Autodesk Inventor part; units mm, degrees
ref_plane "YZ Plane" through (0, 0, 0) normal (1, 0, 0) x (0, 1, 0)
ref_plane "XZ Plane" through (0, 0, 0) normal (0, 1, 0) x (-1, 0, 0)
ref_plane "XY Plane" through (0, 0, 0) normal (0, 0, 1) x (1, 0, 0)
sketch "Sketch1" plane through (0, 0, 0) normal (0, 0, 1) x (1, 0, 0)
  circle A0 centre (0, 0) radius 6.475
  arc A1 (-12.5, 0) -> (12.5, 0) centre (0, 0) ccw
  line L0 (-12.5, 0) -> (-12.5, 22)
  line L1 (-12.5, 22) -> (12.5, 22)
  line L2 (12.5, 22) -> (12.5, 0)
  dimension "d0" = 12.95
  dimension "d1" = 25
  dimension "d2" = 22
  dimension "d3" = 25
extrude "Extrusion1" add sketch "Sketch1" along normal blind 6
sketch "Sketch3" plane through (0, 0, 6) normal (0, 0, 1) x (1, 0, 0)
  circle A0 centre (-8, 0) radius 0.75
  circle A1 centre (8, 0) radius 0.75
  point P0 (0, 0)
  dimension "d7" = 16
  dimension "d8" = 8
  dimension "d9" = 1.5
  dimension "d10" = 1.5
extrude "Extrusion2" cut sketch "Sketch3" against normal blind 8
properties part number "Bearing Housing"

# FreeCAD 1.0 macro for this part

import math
import FreeCAD as App
import Part
import Sketcher

doc = App.newDocument("Part")
body = doc.addObject("PartDesign::Body", "Body")

sketch1 = body.newObject("Sketcher::SketchObject", "Sketch")
sketch1.AttachmentSupport = (doc.getObject("XY_Plane"), [""])
sketch1.MapMode = "FlatFace"
sketch1.addGeometry(Part.LineSegment(App.Vector(-12, 22, 0), App.Vector(-12, 0, 0)), False)
sketch1.addGeometry(Part.ArcOfCircle(Part.Circle(App.Vector(0, 0, 0), App.Vector(0, 0, 1), 12), math.radians(180), math.radians(360)), False)
sketch1.addGeometry(Part.LineSegment(App.Vector(12, 0, 0), App.Vector(12, 22, 0)), False)
sketch1.addGeometry(Part.LineSegment(App.Vector(12, 22, 0), App.Vector(-12, 22, 0)), False)
sketch1.addGeometry(Part.Circle(App.Vector(0, 0, 0), App.Vector(0, 0, 1), 6), False)
sketch1.addConstraint(Sketcher.Constraint("Tangent", 0, 2, 1, 1))
sketch1.addConstraint(Sketcher.Constraint("Tangent", 1, 2, 2, 1))
sketch1.addConstraint(Sketcher.Constraint("Coincident", 2, 2, 3, 1))
sketch1.addConstraint(Sketcher.Constraint("Coincident", 3, 2, 0, 1))
sketch1.addConstraint(Sketcher.Constraint("Vertical", 0))
sketch1.addConstraint(Sketcher.Constraint("Vertical", 2))
sketch1.addConstraint(Sketcher.Constraint("Horizontal", 3))
sketch1.addConstraint(Sketcher.Constraint("Coincident", 1, 3, -1, 1))
sketch1.addConstraint(Sketcher.Constraint("Coincident", 4, 3, -1, 1))
sketch1.addConstraint(Sketcher.Constraint("Radius", 1, 12.5))
sketch1.addConstraint(Sketcher.Constraint("Diameter", 4, 12.95))
sketch1.addConstraint(Sketcher.Constraint("DistanceY", 0, 2, 0, 1, 22.0))
pad1 = body.newObject("PartDesign::Pad", "Pad")
pad1.Profile = sketch1
pad1.Length = 6

sketch2 = body.newObject("Sketcher::SketchObject", "Sketch001")
sketch2.AttachmentSupport = (doc.getObject("XY_Plane"), [""])
sketch2.MapMode = "FlatFace"
sketch2.AttachmentOffset = App.Placement(App.Vector(0, 0, 6), App.Rotation())
sketch2.addGeometry(Part.Circle(App.Vector(-8, 0, 0), App.Vector(0, 0, 1), 0.8), False)
sketch2.addGeometry(Part.Circle(App.Vector(8, 0, 0), App.Vector(0, 0, 1), 0.8), False)
sketch2.addConstraint(Sketcher.Constraint("Equal", 0, 1))
sketch2.addConstraint(Sketcher.Constraint("Symmetric", 0, 3, 1, 3, -1, 1))
sketch2.addConstraint(Sketcher.Constraint("PointOnObject", 0, 3, -1))
sketch2.addConstraint(Sketcher.Constraint("Diameter", 0, 1.5))
sketch2.addConstraint(Sketcher.Constraint("DistanceX", 0, 3, -1, 1, 8.0))
pocket1 = body.newObject("PartDesign::Pocket", "Pocket")
pocket1.Profile = sketch2
pocket1.Length = 8

doc.recompute()
